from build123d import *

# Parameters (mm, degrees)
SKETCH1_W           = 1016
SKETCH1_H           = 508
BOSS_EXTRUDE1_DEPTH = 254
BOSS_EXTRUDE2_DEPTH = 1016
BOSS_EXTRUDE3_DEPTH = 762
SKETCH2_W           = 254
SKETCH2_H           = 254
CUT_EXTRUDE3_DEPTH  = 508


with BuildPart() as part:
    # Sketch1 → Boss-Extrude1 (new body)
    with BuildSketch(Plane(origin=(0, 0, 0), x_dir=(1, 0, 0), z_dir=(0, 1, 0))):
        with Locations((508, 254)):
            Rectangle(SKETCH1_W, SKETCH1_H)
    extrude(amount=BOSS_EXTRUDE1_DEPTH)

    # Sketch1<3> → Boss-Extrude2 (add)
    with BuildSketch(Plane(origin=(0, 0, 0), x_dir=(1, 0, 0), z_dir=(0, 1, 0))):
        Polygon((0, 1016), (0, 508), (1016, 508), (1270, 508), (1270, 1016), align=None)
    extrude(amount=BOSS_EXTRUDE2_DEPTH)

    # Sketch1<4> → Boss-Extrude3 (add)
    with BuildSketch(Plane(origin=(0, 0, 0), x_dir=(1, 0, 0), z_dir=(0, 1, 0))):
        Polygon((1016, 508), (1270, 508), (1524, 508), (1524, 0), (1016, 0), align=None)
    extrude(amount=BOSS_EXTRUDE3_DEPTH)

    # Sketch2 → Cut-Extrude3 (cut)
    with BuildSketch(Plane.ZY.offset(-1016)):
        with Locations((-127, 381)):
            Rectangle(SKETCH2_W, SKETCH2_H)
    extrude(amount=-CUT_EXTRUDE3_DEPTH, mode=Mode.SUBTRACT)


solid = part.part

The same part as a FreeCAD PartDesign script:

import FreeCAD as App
import Part
import Sketcher

V = App.Vector
Q = App.Units.Quantity


def add_polygon(sketch, points):
    """Adds a closed chain of lines whose ends are joined by coincident constraints."""
    first, n = sketch.GeometryCount, len(points)
    for a, b in zip(points, points[1:] + points[:1]):
        sketch.addGeometry(Part.LineSegment(App.Vector(*a, 0), App.Vector(*b, 0)), False)
    for i in range(n):
        sketch.addConstraint(Sketcher.Constraint("Coincident", first + i, 2, first + (i + 1) % n, 1))

doc = App.newDocument("Part")
body = doc.addObject("PartDesign::Body", "Body")

# Sketch on XZ plane
sketch1 = body.newObject("Sketcher::SketchObject", "Sketch")
sketch1.AttachmentSupport = (doc.getObject("XZ_Plane"), [""])
sketch1.MapMode = "FlatFace"
add_polygon(sketch1, [(0, -508), (0, 0), (1016, 0), (1016, -508)])  # lines 0-3
sketch1.addConstraint([
    Sketcher.Constraint("Vertical", 0),
    Sketcher.Constraint("Horizontal", 1),
    Sketcher.Constraint("Vertical", 2),
    Sketcher.Constraint("Horizontal", 3),
    Sketcher.Constraint("Coincident", 0, 2, -1, 1),
    Sketcher.Constraint("DistanceX", 1, 1, 1, 2, Q("40 in")),
    Sketcher.Constraint("DistanceY", 0, 1, 0, 2, Q("20 in")),
])
pad1 = body.newObject("PartDesign::Pad", "Pad")
pad1.Profile = sketch1
pad1.Length = Q("10 in")
pad1.Reversed = True

# Sketch on XZ plane
sketch2 = body.newObject("Sketcher::SketchObject", "Sketch001")
sketch2.AttachmentSupport = (doc.getObject("XZ_Plane"), [""])
sketch2.MapMode = "FlatFace"
add_polygon(sketch2, [(0, -1016), (0, -508), (1270, -508), (1270, -1016)])  # lines 0-3
sketch2.addConstraint([
    Sketcher.Constraint("Vertical", 0),
    Sketcher.Constraint("Horizontal", 1),
    Sketcher.Constraint("Vertical", 2),
    Sketcher.Constraint("Horizontal", 3),
    Sketcher.Constraint("PointOnObject", 0, 2, -2),
    Sketcher.Constraint("DistanceX", 1, 1, 1, 2, Q("50 in")),
    Sketcher.Constraint("DistanceY", 0, 1, 0, 2, Q("20 in")),
    Sketcher.Constraint("DistanceY", 0, 2, -1, 1, Q("20 in")),
])
pad2 = body.newObject("PartDesign::Pad", "Pad001")
pad2.Profile = sketch2
pad2.Length = Q("40 in")
pad2.Reversed = True

# Sketch on XZ plane
sketch3 = body.newObject("Sketcher::SketchObject", "Sketch002")
sketch3.AttachmentSupport = (doc.getObject("XZ_Plane"), [""])
sketch3.MapMode = "FlatFace"
add_polygon(sketch3, [(1524, -508), (1016, -508), (1016, 0), (1524, 0)])  # lines 0-3
sketch3.addConstraint([
    Sketcher.Constraint("Horizontal", 0),
    Sketcher.Constraint("Vertical", 1),
    Sketcher.Constraint("Horizontal", 2),
    Sketcher.Constraint("Vertical", 3),
    Sketcher.Constraint("PointOnObject", 1, 2, -1),
    Sketcher.Constraint("Equal", 2, 1),
    Sketcher.Constraint("DistanceX", 0, 2, 0, 1, Q("20 in")),
    Sketcher.Constraint("DistanceX", -1, 1, 0, 2, Q("40 in")),
])
pad3 = body.newObject("PartDesign::Pad", "Pad002")
pad3.Profile = sketch3
pad3.Length = Q("30 in")
pad3.Reversed = True

# Sketch on YZ plane
sketch4 = body.newObject("Sketcher::SketchObject", "Sketch003")
sketch4.AttachmentSupport = (doc.getObject("YZ_Plane"), [""])
sketch4.MapMode = "FlatFace"
sketch4.AttachmentOffset = App.Placement(V(0, 0, 40 * 25.4), App.Rotation())
add_polygon(sketch4, [(508, -254), (254, -254), (254, 0), (508, 0)])  # lines 0-3
sketch4.addConstraint([
    Sketcher.Constraint("Horizontal", 0),
    Sketcher.Constraint("Vertical", 1),
    Sketcher.Constraint("Horizontal", 2),
    Sketcher.Constraint("Vertical", 3),
    Sketcher.Constraint("PointOnObject", 1, 2, -1),
    Sketcher.Constraint("Equal", 2, 1),
    Sketcher.Constraint("DistanceX", 0, 2, 0, 1, Q("10 in")),
    Sketcher.Constraint("DistanceX", -1, 1, 0, 2, Q("10 in")),
])
pocket1 = body.newObject("PartDesign::Pocket", "Pocket")
pocket1.Profile = sketch4
pocket1.Length = Q("20 in")
pocket1.Reversed = True

doc.recompute()
